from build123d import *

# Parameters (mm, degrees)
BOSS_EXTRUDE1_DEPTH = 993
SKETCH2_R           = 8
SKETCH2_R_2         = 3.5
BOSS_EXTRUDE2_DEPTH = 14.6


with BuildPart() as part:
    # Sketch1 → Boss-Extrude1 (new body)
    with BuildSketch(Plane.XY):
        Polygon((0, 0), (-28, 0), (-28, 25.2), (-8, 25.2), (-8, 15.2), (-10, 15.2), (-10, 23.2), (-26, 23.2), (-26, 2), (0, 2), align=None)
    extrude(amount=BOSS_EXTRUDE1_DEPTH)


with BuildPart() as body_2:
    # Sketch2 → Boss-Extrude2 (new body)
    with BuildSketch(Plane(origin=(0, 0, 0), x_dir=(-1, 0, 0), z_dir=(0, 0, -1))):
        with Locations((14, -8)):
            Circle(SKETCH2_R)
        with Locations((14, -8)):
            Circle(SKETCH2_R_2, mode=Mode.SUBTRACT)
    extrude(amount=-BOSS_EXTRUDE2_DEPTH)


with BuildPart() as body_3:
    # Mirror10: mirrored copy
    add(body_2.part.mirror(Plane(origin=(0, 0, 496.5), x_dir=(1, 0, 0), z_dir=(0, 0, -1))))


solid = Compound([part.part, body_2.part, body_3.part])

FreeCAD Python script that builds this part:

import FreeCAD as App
import Part
import Sketcher

V = App.Vector
Q = App.Units.Quantity

doc = App.newDocument("Part")
body = doc.addObject("PartDesign::Body", "Body")

sketch1 = doc.addObject("Sketcher::SketchObject", "Sketch")
body.addObject(sketch1)
sketch1.AttachmentSupport = (doc.XY_Plane, [""])
sketch1.MapMode = "FlatFace"
sketch1.addGeometry(Part.LineSegment(V(-28, 0, 0), V(0, 0, 0)), False)
sketch1.addGeometry(Part.LineSegment(V(0, 0, 0), V(0, 2, 0)), False)
sketch1.addGeometry(Part.LineSegment(V(0, 2, 0), V(-26, 2, 0)), False)
sketch1.addGeometry(Part.LineSegment(V(-26, 2, 0), V(-26, 23.2, 0)), False)
sketch1.addGeometry(Part.LineSegment(V(-26, 23.2, 0), V(-10, 23.2, 0)), False)
sketch1.addGeometry(Part.LineSegment(V(-10, 23.2, 0), V(-10, 15.2, 0)), False)
sketch1.addGeometry(Part.LineSegment(V(-10, 15.2, 0), V(-8, 15.2, 0)), False)
sketch1.addGeometry(Part.LineSegment(V(-8, 15.2, 0), V(-8, 25.2, 0)), False)
sketch1.addGeometry(Part.LineSegment(V(-8, 25.2, 0), V(-28, 25.2, 0)), False)
sketch1.addGeometry(Part.LineSegment(V(-28, 25.2, 0), V(-28, 0, 0)), False)
sketch1.addConstraint(Sketcher.Constraint("Coincident", 0, 2, 1, 1))
sketch1.addConstraint(Sketcher.Constraint("Coincident", 1, 2, 2, 1))
sketch1.addConstraint(Sketcher.Constraint("Coincident", 2, 2, 3, 1))
sketch1.addConstraint(Sketcher.Constraint("Coincident", 3, 2, 4, 1))
sketch1.addConstraint(Sketcher.Constraint("Coincident", 4, 2, 5, 1))
sketch1.addConstraint(Sketcher.Constraint("Coincident", 5, 2, 6, 1))
sketch1.addConstraint(Sketcher.Constraint("Coincident", 6, 2, 7, 1))
sketch1.addConstraint(Sketcher.Constraint("Coincident", 7, 2, 8, 1))
sketch1.addConstraint(Sketcher.Constraint("Coincident", 8, 2, 9, 1))
sketch1.addConstraint(Sketcher.Constraint("Coincident", 9, 2, 0, 1))
sketch1.addConstraint(Sketcher.Constraint("Horizontal", 0))
sketch1.addConstraint(Sketcher.Constraint("Vertical", 1))
sketch1.addConstraint(Sketcher.Constraint("Horizontal", 2))
sketch1.addConstraint(Sketcher.Constraint("Vertical", 3))
sketch1.addConstraint(Sketcher.Constraint("Horizontal", 4))
sketch1.addConstraint(Sketcher.Constraint("Vertical", 5))
sketch1.addConstraint(Sketcher.Constraint("Horizontal", 6))
sketch1.addConstraint(Sketcher.Constraint("Vertical", 7))
sketch1.addConstraint(Sketcher.Constraint("Horizontal", 8))
sketch1.addConstraint(Sketcher.Constraint("Vertical", 9))
sketch1.addConstraint(Sketcher.Constraint("Coincident", 0, 2, -1, 1))
sketch1.addConstraint(Sketcher.Constraint("Equal", 6, 1))
sketch1.addConstraint(Sketcher.Constraint("DistanceX", 0, 1, 0, 2, Q("28 mm")))
sketch1.addConstraint(Sketcher.Constraint("DistanceX", 2, 2, 2, 1, Q("26 mm")))
sketch1.addConstraint(Sketcher.Constraint("DistanceX", 4, 1, 4, 2, Q("16 mm")))
sketch1.addConstraint(Sketcher.Constraint("DistanceX", 6, 1, 6, 2, Q("2 mm")))
sketch1.addConstraint(Sketcher.Constraint("DistanceY", 5, 2, 5, 1, Q("8 mm")))
sketch1.addConstraint(Sketcher.Constraint("DistanceY", 7, 1, 7, 2, Q("10 mm")))
sketch1.addConstraint(Sketcher.Constraint("DistanceY", 3, 1, 3, 2, Q("21.2 mm")))
pad1 = doc.addObject("PartDesign::Pad", "Pad")
body.addObject(pad1)
pad1.Profile = sketch1
pad1.Length = 993
body2 = doc.addObject("PartDesign::Body", "Body001")

sketch2 = doc.addObject("Sketcher::SketchObject", "Sketch001")
body2.addObject(sketch2)
sketch2.AttachmentSupport = (doc.getObject("XY_Plane001"), [""])
sketch2.MapMode = "FlatFace"
sketch2.addGeometry(Part.Circle(V(-14, -8, 0), V(0, 0, 1), 8), False)
sketch2.addGeometry(Part.Circle(V(-14, -8, 0), V(0, 0, 1), 3.5), False)
sketch2.addConstraint(Sketcher.Constraint("Coincident", 1, 3, 0, 3))
sketch2.addConstraint(Sketcher.Constraint("Diameter", 0, Q("16 mm")))
sketch2.addConstraint(Sketcher.Constraint("Diameter", 1, Q("7 mm")))
sketch2.addConstraint(Sketcher.Constraint("DistanceX", 0, 3, -1, 1, Q("14 mm")))
sketch2.addConstraint(Sketcher.Constraint("DistanceY", 0, 3, -1, 1, Q("8 mm")))
pad2 = doc.addObject("PartDesign::Pad", "Pad001")
body2.addObject(pad2)
pad2.Profile = sketch2
pad2.Length = 14.6
body3 = doc.addObject("PartDesign::Body", "Body002")
doc.recompute()

mirroring = doc.addObject("Part::Mirroring", "Mirroring")
mirroring.Source = body2
mirroring.Base = V(0, 0, 496.5)
mirroring.Normal = V(0, 0, -1)
body3.BaseFeature = mirroring
doc.recompute()
mirroring.Visibility = False

doc.recompute()
